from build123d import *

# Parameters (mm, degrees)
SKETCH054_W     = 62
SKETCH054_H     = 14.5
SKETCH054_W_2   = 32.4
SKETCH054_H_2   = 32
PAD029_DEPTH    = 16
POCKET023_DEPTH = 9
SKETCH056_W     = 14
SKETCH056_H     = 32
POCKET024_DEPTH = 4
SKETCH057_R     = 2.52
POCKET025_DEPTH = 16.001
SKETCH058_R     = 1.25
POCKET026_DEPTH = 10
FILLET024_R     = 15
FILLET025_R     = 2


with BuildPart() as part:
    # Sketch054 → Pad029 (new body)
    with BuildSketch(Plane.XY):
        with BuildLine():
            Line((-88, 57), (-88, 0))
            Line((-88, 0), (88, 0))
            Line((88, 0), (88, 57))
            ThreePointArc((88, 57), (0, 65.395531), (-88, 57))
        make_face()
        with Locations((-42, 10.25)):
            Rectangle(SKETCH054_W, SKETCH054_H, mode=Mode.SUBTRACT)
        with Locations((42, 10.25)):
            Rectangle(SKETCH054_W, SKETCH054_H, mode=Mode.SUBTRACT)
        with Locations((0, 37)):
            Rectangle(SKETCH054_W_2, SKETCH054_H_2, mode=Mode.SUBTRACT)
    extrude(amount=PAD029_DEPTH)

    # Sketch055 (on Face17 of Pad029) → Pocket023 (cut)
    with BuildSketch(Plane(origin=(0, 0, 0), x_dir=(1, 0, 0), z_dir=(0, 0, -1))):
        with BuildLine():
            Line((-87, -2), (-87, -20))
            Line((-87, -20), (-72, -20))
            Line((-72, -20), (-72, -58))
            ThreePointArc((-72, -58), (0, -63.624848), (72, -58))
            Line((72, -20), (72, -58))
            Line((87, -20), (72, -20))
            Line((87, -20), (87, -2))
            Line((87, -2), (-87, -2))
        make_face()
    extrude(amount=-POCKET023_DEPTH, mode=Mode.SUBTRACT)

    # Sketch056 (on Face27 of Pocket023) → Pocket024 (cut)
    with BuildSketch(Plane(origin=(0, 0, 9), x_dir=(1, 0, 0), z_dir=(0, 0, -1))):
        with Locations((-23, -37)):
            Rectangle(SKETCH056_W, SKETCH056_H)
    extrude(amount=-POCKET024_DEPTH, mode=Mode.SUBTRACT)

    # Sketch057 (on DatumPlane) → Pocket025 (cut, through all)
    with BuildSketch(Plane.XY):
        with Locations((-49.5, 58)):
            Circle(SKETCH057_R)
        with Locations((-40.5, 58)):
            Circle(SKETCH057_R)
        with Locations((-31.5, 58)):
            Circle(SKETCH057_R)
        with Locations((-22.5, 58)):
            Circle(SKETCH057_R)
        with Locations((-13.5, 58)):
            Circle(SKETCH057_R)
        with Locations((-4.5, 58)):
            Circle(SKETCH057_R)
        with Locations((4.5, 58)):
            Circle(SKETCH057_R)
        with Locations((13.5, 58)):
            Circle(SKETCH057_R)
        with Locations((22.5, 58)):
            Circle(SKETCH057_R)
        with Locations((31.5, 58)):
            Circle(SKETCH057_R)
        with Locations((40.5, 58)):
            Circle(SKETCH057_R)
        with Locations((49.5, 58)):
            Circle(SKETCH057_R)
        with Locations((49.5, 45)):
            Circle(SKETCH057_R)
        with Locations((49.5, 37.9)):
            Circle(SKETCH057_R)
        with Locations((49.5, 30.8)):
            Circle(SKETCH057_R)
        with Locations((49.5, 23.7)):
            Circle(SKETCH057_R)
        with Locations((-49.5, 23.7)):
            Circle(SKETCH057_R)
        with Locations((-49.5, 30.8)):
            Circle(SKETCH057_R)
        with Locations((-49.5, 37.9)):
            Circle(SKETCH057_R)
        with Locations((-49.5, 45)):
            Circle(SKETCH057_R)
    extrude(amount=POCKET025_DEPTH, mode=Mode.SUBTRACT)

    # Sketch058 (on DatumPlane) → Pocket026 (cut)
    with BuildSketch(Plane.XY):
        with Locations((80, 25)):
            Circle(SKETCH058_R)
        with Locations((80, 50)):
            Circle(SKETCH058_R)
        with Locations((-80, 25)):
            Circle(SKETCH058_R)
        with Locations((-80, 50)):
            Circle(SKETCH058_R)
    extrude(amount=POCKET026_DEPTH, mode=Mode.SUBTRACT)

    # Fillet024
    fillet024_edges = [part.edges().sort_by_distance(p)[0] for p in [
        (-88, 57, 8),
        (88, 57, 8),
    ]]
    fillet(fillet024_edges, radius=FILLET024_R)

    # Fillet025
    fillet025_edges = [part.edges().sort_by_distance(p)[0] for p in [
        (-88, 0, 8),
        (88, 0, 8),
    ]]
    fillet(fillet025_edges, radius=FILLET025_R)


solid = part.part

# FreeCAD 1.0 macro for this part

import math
import FreeCAD as App
import Part
import Sketcher
from FreeCAD import Vector
Q = App.Units.Quantity


def edges_at(feature, points):
    """Names of the edges that pass closest to the given points."""
    edges = feature.Shape.Edges
    near = lambda p: min(range(len(edges)), key=lambda i: edges[i].distToShape(Part.Vertex(*p))[0])
    return sorted({f"Edge{near(p) + 1}" for p in points})


def add_polygon(sketch, points):
    """Adds a closed chain of lines whose ends are joined by coincident constraints."""
    first, n = sketch.GeometryCount, len(points)
    for a, b in zip(points, points[1:] + points[:1]):
        sketch.addGeometry(Part.LineSegment(App.Vector(*a, 0), App.Vector(*b, 0)), False)
    for i in range(n):
        sketch.addConstraint(Sketcher.Constraint("Coincident", first + i, 2, first + (i + 1) % n, 1))

doc = App.newDocument("Part")
body = doc.addObject("PartDesign::Body", "Body")

# Sketch on XY plane
sketch1 = body.newObject("Sketcher::SketchObject", "Sketch")
sketch1.AttachmentSupport = (doc.getObject("XY_Plane"), [""])
sketch1.MapMode = "FlatFace"
sketch1.addGeometry(Part.LineSegment(Vector(-88, 57, 0), Vector(-88, 0, 0)), False)  # 0
sketch1.addGeometry(Part.LineSegment(Vector(-88, 0, 0), Vector(88, 0, 0)), False)  # 1
sketch1.addGeometry(Part.LineSegment(Vector(88, 0, 0), Vector(88, 57, 0)), False)  # 2
sketch1.addGeometry(Part.ArcOfCircle(Part.Circle(Vector(0, -400, 0), Vector(0, 0, 1), 465), math.radians(79), math.radians(101)), False)  # 3
add_polygon(sketch1, [(-11, 3), (-73, 3), (-73, 18), (-11, 18)])  # lines 4-7
add_polygon(sketch1, [(73, 3), (11, 3), (11, 18), (73, 18)])  # lines 8-11
add_polygon(sketch1, [(16, 21), (-16, 21), (-16, 53), (16, 53)])  # lines 12-15
sketch1.addConstraint(Sketcher.Constraint("Coincident", 0, 2, 1, 1))
sketch1.addConstraint(Sketcher.Constraint("Coincident", 1, 2, 2, 1))
sketch1.addConstraint(Sketcher.Constraint("Coincident", 2, 2, 3, 1))
sketch1.addConstraint(Sketcher.Constraint("Coincident", 3, 2, 0, 1))
sketch1.addConstraint(Sketcher.Constraint("Vertical", 0))
sketch1.addConstraint(Sketcher.Constraint("Horizontal", 1))
sketch1.addConstraint(Sketcher.Constraint("Vertical", 2))
sketch1.addConstraint(Sketcher.Constraint("Horizontal", 4))
sketch1.addConstraint(Sketcher.Constraint("Vertical", 5))
sketch1.addConstraint(Sketcher.Constraint("Horizontal", 6))
sketch1.addConstraint(Sketcher.Constraint("Vertical", 7))
sketch1.addConstraint(Sketcher.Constraint("Horizontal", 8))
sketch1.addConstraint(Sketcher.Constraint("Vertical", 9))
sketch1.addConstraint(Sketcher.Constraint("Horizontal", 10))
sketch1.addConstraint(Sketcher.Constraint("Vertical", 11))
sketch1.addConstraint(Sketcher.Constraint("Horizontal", 12))
sketch1.addConstraint(Sketcher.Constraint("Vertical", 13))
sketch1.addConstraint(Sketcher.Constraint("Horizontal", 14))
sketch1.addConstraint(Sketcher.Constraint("Vertical", 15))
sketch1.addConstraint(Sketcher.Constraint("Symmetric", 0, 2, 1, 2, -1, 1))
sketch1.addConstraint(Sketcher.Constraint("Symmetric", 7, 2, 8, 2, -2))
sketch1.addConstraint(Sketcher.Constraint("Symmetric", 5, 2, 10, 2, -2))
sketch1.addConstraint(Sketcher.Constraint("PointOnObject", 3, 3, -2))
sketch1.addConstraint(Sketcher.Constraint("DistanceX", 1, 1, 1, 2, Q("176 mm")))
sketch1.addConstraint(Sketcher.Constraint("DistanceX", 4, 2, 4, 1, Q("62 mm")))
sketch1.addConstraint(Sketcher.Constraint("DistanceY", 0, 2, 0, 1, Q("57 mm")))
sketch1.addConstraint(Sketcher.Constraint("DistanceY", 13, 1, 13, 2, Q("32 mm")))
sketch1.addConstraint(Sketcher.Constraint("DistanceX", 12, 2, 12, 1, Q("32.4 mm")))
sketch1.addConstraint(Sketcher.Constraint("DistanceY", 5, 1, 5, 2, Q("14.5 mm")))
sketch1.addConstraint(Sketcher.Constraint("DistanceX", 4, 2, -1, 1, Q("73 mm")))
sketch1.addConstraint(Sketcher.Constraint("DistanceY", -1, 1, 4, 2, Q("3 mm")))
sketch1.addConstraint(Sketcher.Constraint("DistanceY", -1, 1, 12, 2, Q("21 mm")))
sketch1.addConstraint(Sketcher.Constraint("DistanceX", 12, 2, -1, 1, Q("16.2 mm")))
sketch1.addConstraint(Sketcher.Constraint("Radius", 3, Q("465.395515 mm")))
pad1 = body.newObject("PartDesign::Pad", "Pad")
pad1.Profile = sketch1
pad1.Length = 16

# Sketch on XY plane
sketch2 = body.newObject("Sketcher::SketchObject", "Sketch001")
sketch2.AttachmentSupport = (doc.getObject("XY_Plane"), [""])
sketch2.MapMode = "FlatFace"
sketch2.addGeometry(Part.LineSegment(Vector(-87, 2, 0), Vector(-87, 20, 0)), False)
sketch2.addGeometry(Part.LineSegment(Vector(-87, 20, 0), Vector(-72, 20, 0)), False)
sketch2.addGeometry(Part.LineSegment(Vector(-72, 20, 0), Vector(-72, 58, 0)), False)
sketch2.addGeometry(Part.ArcOfCircle(Part.Circle(Vector(0, -400.000028, 0), Vector(0, 0, 1), 463.624876), math.radians(81.065922), math.radians(98.934078)), False)
sketch2.addGeometry(Part.LineSegment(Vector(72, 58, 0), Vector(72, 20, 0)), False)
sketch2.addGeometry(Part.LineSegment(Vector(72, 20, 0), Vector(87, 20, 0)), False)
sketch2.addGeometry(Part.LineSegment(Vector(87, 20, 0), Vector(87, 2, 0)), False)
sketch2.addGeometry(Part.LineSegment(Vector(87, 2, 0), Vector(-87, 2, 0)), False)
sketch2.addConstraint(Sketcher.Constraint("Coincident", 0, 2, 1, 1))
sketch2.addConstraint(Sketcher.Constraint("Coincident", 1, 2, 2, 1))
sketch2.addConstraint(Sketcher.Constraint("Coincident", 2, 2, 3, 2))
sketch2.addConstraint(Sketcher.Constraint("Coincident", 3, 1, 4, 1))
sketch2.addConstraint(Sketcher.Constraint("Coincident", 4, 2, 5, 1))
sketch2.addConstraint(Sketcher.Constraint("Coincident", 5, 2, 6, 1))
sketch2.addConstraint(Sketcher.Constraint("Coincident", 6, 2, 7, 1))
sketch2.addConstraint(Sketcher.Constraint("Coincident", 7, 2, 0, 1))
sketch2.addConstraint(Sketcher.Constraint("Vertical", 0))
sketch2.addConstraint(Sketcher.Constraint("Horizontal", 1))
sketch2.addConstraint(Sketcher.Constraint("Vertical", 2))
sketch2.addConstraint(Sketcher.Constraint("Vertical", 4))
sketch2.addConstraint(Sketcher.Constraint("Horizontal", 5))
sketch2.addConstraint(Sketcher.Constraint("Vertical", 6))
sketch2.addConstraint(Sketcher.Constraint("Horizontal", 7))
sketch2.addConstraint(Sketcher.Constraint("Symmetric", 1, 2, 4, 2, -2))
sketch2.addConstraint(Sketcher.Constraint("PointOnObject", 3, 3, -2))
sketch2.addConstraint(Sketcher.Constraint("Equal", 1, 5))
sketch2.addConstraint(Sketcher.Constraint("DistanceX", 1, 1, 1, 2, Q("15 mm")))
sketch2.addConstraint(Sketcher.Constraint("DistanceX", 7, 2, 7, 1, Q("174 mm")))
sketch2.addConstraint(Sketcher.Constraint("DistanceY", 0, 1, 0, 2, Q("18 mm")))
sketch2.addConstraint(Sketcher.Constraint("DistanceY", 2, 1, 2, 2, Q("38 mm")))
sketch2.addConstraint(Sketcher.Constraint("DistanceY", -1, 1, 0, 2, Q("20 mm")))
sketch2.addConstraint(Sketcher.Constraint("Radius", 3, Q("463.624876 mm")))
pocket1 = body.newObject("PartDesign::Pocket", "Pocket")
pocket1.Profile = sketch2
pocket1.Length = 9
pocket1.Reversed = True

# Sketch on XY plane
sketch3 = body.newObject("Sketcher::SketchObject", "Sketch002")
sketch3.AttachmentSupport = (doc.getObject("XY_Plane"), [""])
sketch3.MapMode = "FlatFace"
sketch3.AttachmentOffset = App.Placement(Vector(0, 0, 9), App.Rotation())
add_polygon(sketch3, [(-30, 21), (-30, 53), (-16, 53), (-16, 21)])  # lines 0-3
sketch3.addConstraint(Sketcher.Constraint("Vertical", 0))
sketch3.addConstraint(Sketcher.Constraint("Horizontal", 1))
sketch3.addConstraint(Sketcher.Constraint("Vertical", 2))
sketch3.addConstraint(Sketcher.Constraint("Horizontal", 3))
sketch3.addConstraint(Sketcher.Constraint("DistanceX", 1, 1, 1, 2, Q("14 mm")))
sketch3.addConstraint(Sketcher.Constraint("DistanceY", 0, 1, 0, 2, Q("32 mm")))
sketch3.addConstraint(Sketcher.Constraint("DistanceX", 0, 2, -1, 1, Q("30 mm")))
sketch3.addConstraint(Sketcher.Constraint("DistanceY", -1, 1, 0, 2, Q("53 mm")))
pocket2 = body.newObject("PartDesign::Pocket", "Pocket001")
pocket2.Profile = sketch3
pocket2.Length = 4
pocket2.Reversed = True

# Sketch on XY plane
sketch4 = body.newObject("Sketcher::SketchObject", "Sketch003")
sketch4.AttachmentSupport = (doc.getObject("XY_Plane"), [""])
sketch4.MapMode = "FlatFace"
sketch4.addGeometry(Part.Circle(Vector(-49.5, 58, 0), Vector(0, 0, 1), 2.5), False)
sketch4.addGeometry(Part.Circle(Vector(-40.5, 58, 0), Vector(0, 0, 1), 2.5), False)
sketch4.addGeometry(Part.Circle(Vector(-31.5, 58, 0), Vector(0, 0, 1), 2.5), False)
sketch4.addGeometry(Part.Circle(Vector(-22.5, 58, 0), Vector(0, 0, 1), 2.5), False)
sketch4.addGeometry(Part.Circle(Vector(-13.5, 58, 0), Vector(0, 0, 1), 2.5), False)
sketch4.addGeometry(Part.Circle(Vector(-4.5, 58, 0), Vector(0, 0, 1), 2.5), False)
sketch4.addGeometry(Part.Circle(Vector(4.5, 58, 0), Vector(0, 0, 1), 2.5), False)
sketch4.addGeometry(Part.Circle(Vector(13.5, 58, 0), Vector(0, 0, 1), 2.5), False)
sketch4.addGeometry(Part.Circle(Vector(22.5, 58, 0), Vector(0, 0, 1), 2.5), False)
sketch4.addGeometry(Part.Circle(Vector(31.5, 58, 0), Vector(0, 0, 1), 2.5), False)
sketch4.addGeometry(Part.Circle(Vector(40.5, 58, 0), Vector(0, 0, 1), 2.5), False)
sketch4.addGeometry(Part.Circle(Vector(49.5, 58, 0), Vector(0, 0, 1), 2.5), False)
sketch4.addGeometry(Part.Circle(Vector(49.5, 45, 0), Vector(0, 0, 1), 2.5), False)
sketch4.addGeometry(Part.Circle(Vector(49.5, 37.9, 0), Vector(0, 0, 1), 2.5), False)
sketch4.addGeometry(Part.Circle(Vector(49.5, 30.8, 0), Vector(0, 0, 1), 2.5), False)
sketch4.addGeometry(Part.Circle(Vector(49.5, 23.7, 0), Vector(0, 0, 1), 2.5), False)
sketch4.addGeometry(Part.Circle(Vector(-49.5, 23.7, 0), Vector(0, 0, 1), 2.5), False)
sketch4.addGeometry(Part.Circle(Vector(-49.5, 30.8, 0), Vector(0, 0, 1), 2.5), False)
sketch4.addGeometry(Part.Circle(Vector(-49.5, 37.9, 0), Vector(0, 0, 1), 2.5), False)
sketch4.addGeometry(Part.Circle(Vector(-49.5, 45, 0), Vector(0, 0, 1), 2.5), False)
sketch4.addConstraint(Sketcher.Constraint("Equal", 0, 1))
sketch4.addConstraint(Sketcher.Constraint("Equal", 1, 2))
sketch4.addConstraint(Sketcher.Constraint("Equal", 2, 3))
sketch4.addConstraint(Sketcher.Constraint("Equal", 3, 4))
sketch4.addConstraint(Sketcher.Constraint("Equal", 4, 5))
sketch4.addConstraint(Sketcher.Constraint("Equal", 5, 6))
sketch4.addConstraint(Sketcher.Constraint("Equal", 6, 7))
sketch4.addConstraint(Sketcher.Constraint("Equal", 7, 8))
sketch4.addConstraint(Sketcher.Constraint("Equal", 8, 9))
sketch4.addConstraint(Sketcher.Constraint("Equal", 9, 10))
sketch4.addConstraint(Sketcher.Constraint("Equal", 10, 11))
sketch4.addConstraint(Sketcher.Constraint("Equal", 11, 12))
sketch4.addConstraint(Sketcher.Constraint("Equal", 12, 13))
sketch4.addConstraint(Sketcher.Constraint("Equal", 13, 14))
sketch4.addConstraint(Sketcher.Constraint("Equal", 14, 15))
sketch4.addConstraint(Sketcher.Constraint("Equal", 15, 16))
sketch4.addConstraint(Sketcher.Constraint("Equal", 16, 17))
sketch4.addConstraint(Sketcher.Constraint("Equal", 17, 18))
sketch4.addConstraint(Sketcher.Constraint("Equal", 18, 19))
sketch4.addConstraint(Sketcher.Constraint("Symmetric", 5, 3, 6, 3, -2))
sketch4.addConstraint(Sketcher.Constraint("Symmetric", 4, 3, 7, 3, -2))
sketch4.addConstraint(Sketcher.Constraint("Symmetric", 3, 3, 8, 3, -2))
sketch4.addConstraint(Sketcher.Constraint("Symmetric", 2, 3, 9, 3, -2))
sketch4.addConstraint(Sketcher.Constraint("Symmetric", 1, 3, 10, 3, -2))
sketch4.addConstraint(Sketcher.Constraint("Symmetric", 0, 3, 11, 3, -2))
sketch4.addConstraint(Sketcher.Constraint("Symmetric", 15, 3, 16, 3, -2))
sketch4.addConstraint(Sketcher.Constraint("Symmetric", 14, 3, 17, 3, -2))
sketch4.addConstraint(Sketcher.Constraint("Symmetric", 13, 3, 18, 3, -2))
sketch4.addConstraint(Sketcher.Constraint("Symmetric", 12, 3, 19, 3, -2))
sketch4.addConstraint(Sketcher.Constraint("Horizontal", 0, 3, 1, 3))
sketch4.addConstraint(Sketcher.Constraint("Horizontal", 1, 3, 2, 3))
sketch4.addConstraint(Sketcher.Constraint("Horizontal", 2, 3, 3, 3))
sketch4.addConstraint(Sketcher.Constraint("Horizontal", 3, 3, 4, 3))
sketch4.addConstraint(Sketcher.Constraint("Horizontal", 4, 3, 5, 3))
sketch4.addConstraint(Sketcher.Constraint("Vertical", 11, 3, 12, 3))
sketch4.addConstraint(Sketcher.Constraint("Vertical", 12, 3, 13, 3))
sketch4.addConstraint(Sketcher.Constraint("Vertical", 13, 3, 14, 3))
sketch4.addConstraint(Sketcher.Constraint("Vertical", 14, 3, 15, 3))
sketch4.addConstraint(Sketcher.Constraint("Diameter", 0, Q("5.04 mm")))
sketch4.addConstraint(Sketcher.Constraint("DistanceY", -1, 1, 0, 3, Q("58 mm")))
sketch4.addConstraint(Sketcher.Constraint("DistanceY", -1, 1, 12, 3, Q("45 mm")))
sketch4.addConstraint(Sketcher.Constraint("DistanceX", 0, 3, 1, 3, Q("9 mm")))
sketch4.addConstraint(Sketcher.Constraint("DistanceX", 1, 3, 2, 3, Q("9 mm")))
sketch4.addConstraint(Sketcher.Constraint("DistanceX", 2, 3, 3, 3, Q("9 mm")))
sketch4.addConstraint(Sketcher.Constraint("DistanceX", 3, 3, 4, 3, Q("9 mm")))
sketch4.addConstraint(Sketcher.Constraint("DistanceX", 4, 3, 5, 3, Q("9 mm")))
sketch4.addConstraint(Sketcher.Constraint("DistanceX", 5, 3, 6, 3, Q("9 mm")))
sketch4.addConstraint(Sketcher.Constraint("DistanceY", -1, 1, 13, 3, Q("37.9 mm")))
sketch4.addConstraint(Sketcher.Constraint("DistanceY", -1, 1, 14, 3, Q("30.8 mm")))
sketch4.addConstraint(Sketcher.Constraint("DistanceY", -1, 1, 15, 3, Q("23.7 mm")))
pocket3 = body.newObject("PartDesign::Pocket", "Pocket002")
pocket3.Profile = sketch4
pocket3.Type = "ThroughAll"
pocket3.Reversed = True

# Sketch on XY plane
sketch5 = body.newObject("Sketcher::SketchObject", "Sketch004")
sketch5.AttachmentSupport = (doc.getObject("XY_Plane"), [""])
sketch5.MapMode = "FlatFace"
sketch5.addGeometry(Part.Circle(Vector(80, 25, 0), Vector(0, 0, 1), 1.2), False)
sketch5.addGeometry(Part.Circle(Vector(80, 50, 0), Vector(0, 0, 1), 1.2), False)
sketch5.addGeometry(Part.Circle(Vector(-80, 25, 0), Vector(0, 0, 1), 1.2), False)
sketch5.addGeometry(Part.Circle(Vector(-80, 50, 0), Vector(0, 0, 1), 1.2), False)
sketch5.addConstraint(Sketcher.Constraint("Equal", 0, 1))
sketch5.addConstraint(Sketcher.Constraint("Equal", 1, 2))
sketch5.addConstraint(Sketcher.Constraint("Equal", 2, 3))
sketch5.addConstraint(Sketcher.Constraint("Symmetric", 0, 3, 2, 3, -2))
sketch5.addConstraint(Sketcher.Constraint("Symmetric", 1, 3, 3, 3, -2))
sketch5.addConstraint(Sketcher.Constraint("Vertical", 0, 3, 1, 3))
sketch5.addConstraint(Sketcher.Constraint("Diameter", 0, Q("2.5 mm")))
sketch5.addConstraint(Sketcher.Constraint("DistanceX", -1, 1, 0, 3, Q("80 mm")))
sketch5.addConstraint(Sketcher.Constraint("DistanceY", -1, 1, 0, 3, Q("25 mm")))
sketch5.addConstraint(Sketcher.Constraint("DistanceY", -1, 1, 1, 3, Q("50 mm")))
pocket4 = body.newObject("PartDesign::Pocket", "Pocket003")
pocket4.Profile = sketch5
pocket4.Length = 10
pocket4.Reversed = True
doc.recompute()

fillet = body.newObject("PartDesign::Fillet", "Fillet")
fillet.Base = (pocket4, edges_at(pocket4, [(-88, 57, 8), (88, 57, 8)]))
fillet.Radius = 15
doc.recompute()

fillet2 = body.newObject("PartDesign::Fillet", "Fillet001")
fillet2.Base = (fillet, edges_at(fillet, [(-88, 0, 8), (88, 0, 8)]))
fillet2.Radius = 2

doc.recompute()
